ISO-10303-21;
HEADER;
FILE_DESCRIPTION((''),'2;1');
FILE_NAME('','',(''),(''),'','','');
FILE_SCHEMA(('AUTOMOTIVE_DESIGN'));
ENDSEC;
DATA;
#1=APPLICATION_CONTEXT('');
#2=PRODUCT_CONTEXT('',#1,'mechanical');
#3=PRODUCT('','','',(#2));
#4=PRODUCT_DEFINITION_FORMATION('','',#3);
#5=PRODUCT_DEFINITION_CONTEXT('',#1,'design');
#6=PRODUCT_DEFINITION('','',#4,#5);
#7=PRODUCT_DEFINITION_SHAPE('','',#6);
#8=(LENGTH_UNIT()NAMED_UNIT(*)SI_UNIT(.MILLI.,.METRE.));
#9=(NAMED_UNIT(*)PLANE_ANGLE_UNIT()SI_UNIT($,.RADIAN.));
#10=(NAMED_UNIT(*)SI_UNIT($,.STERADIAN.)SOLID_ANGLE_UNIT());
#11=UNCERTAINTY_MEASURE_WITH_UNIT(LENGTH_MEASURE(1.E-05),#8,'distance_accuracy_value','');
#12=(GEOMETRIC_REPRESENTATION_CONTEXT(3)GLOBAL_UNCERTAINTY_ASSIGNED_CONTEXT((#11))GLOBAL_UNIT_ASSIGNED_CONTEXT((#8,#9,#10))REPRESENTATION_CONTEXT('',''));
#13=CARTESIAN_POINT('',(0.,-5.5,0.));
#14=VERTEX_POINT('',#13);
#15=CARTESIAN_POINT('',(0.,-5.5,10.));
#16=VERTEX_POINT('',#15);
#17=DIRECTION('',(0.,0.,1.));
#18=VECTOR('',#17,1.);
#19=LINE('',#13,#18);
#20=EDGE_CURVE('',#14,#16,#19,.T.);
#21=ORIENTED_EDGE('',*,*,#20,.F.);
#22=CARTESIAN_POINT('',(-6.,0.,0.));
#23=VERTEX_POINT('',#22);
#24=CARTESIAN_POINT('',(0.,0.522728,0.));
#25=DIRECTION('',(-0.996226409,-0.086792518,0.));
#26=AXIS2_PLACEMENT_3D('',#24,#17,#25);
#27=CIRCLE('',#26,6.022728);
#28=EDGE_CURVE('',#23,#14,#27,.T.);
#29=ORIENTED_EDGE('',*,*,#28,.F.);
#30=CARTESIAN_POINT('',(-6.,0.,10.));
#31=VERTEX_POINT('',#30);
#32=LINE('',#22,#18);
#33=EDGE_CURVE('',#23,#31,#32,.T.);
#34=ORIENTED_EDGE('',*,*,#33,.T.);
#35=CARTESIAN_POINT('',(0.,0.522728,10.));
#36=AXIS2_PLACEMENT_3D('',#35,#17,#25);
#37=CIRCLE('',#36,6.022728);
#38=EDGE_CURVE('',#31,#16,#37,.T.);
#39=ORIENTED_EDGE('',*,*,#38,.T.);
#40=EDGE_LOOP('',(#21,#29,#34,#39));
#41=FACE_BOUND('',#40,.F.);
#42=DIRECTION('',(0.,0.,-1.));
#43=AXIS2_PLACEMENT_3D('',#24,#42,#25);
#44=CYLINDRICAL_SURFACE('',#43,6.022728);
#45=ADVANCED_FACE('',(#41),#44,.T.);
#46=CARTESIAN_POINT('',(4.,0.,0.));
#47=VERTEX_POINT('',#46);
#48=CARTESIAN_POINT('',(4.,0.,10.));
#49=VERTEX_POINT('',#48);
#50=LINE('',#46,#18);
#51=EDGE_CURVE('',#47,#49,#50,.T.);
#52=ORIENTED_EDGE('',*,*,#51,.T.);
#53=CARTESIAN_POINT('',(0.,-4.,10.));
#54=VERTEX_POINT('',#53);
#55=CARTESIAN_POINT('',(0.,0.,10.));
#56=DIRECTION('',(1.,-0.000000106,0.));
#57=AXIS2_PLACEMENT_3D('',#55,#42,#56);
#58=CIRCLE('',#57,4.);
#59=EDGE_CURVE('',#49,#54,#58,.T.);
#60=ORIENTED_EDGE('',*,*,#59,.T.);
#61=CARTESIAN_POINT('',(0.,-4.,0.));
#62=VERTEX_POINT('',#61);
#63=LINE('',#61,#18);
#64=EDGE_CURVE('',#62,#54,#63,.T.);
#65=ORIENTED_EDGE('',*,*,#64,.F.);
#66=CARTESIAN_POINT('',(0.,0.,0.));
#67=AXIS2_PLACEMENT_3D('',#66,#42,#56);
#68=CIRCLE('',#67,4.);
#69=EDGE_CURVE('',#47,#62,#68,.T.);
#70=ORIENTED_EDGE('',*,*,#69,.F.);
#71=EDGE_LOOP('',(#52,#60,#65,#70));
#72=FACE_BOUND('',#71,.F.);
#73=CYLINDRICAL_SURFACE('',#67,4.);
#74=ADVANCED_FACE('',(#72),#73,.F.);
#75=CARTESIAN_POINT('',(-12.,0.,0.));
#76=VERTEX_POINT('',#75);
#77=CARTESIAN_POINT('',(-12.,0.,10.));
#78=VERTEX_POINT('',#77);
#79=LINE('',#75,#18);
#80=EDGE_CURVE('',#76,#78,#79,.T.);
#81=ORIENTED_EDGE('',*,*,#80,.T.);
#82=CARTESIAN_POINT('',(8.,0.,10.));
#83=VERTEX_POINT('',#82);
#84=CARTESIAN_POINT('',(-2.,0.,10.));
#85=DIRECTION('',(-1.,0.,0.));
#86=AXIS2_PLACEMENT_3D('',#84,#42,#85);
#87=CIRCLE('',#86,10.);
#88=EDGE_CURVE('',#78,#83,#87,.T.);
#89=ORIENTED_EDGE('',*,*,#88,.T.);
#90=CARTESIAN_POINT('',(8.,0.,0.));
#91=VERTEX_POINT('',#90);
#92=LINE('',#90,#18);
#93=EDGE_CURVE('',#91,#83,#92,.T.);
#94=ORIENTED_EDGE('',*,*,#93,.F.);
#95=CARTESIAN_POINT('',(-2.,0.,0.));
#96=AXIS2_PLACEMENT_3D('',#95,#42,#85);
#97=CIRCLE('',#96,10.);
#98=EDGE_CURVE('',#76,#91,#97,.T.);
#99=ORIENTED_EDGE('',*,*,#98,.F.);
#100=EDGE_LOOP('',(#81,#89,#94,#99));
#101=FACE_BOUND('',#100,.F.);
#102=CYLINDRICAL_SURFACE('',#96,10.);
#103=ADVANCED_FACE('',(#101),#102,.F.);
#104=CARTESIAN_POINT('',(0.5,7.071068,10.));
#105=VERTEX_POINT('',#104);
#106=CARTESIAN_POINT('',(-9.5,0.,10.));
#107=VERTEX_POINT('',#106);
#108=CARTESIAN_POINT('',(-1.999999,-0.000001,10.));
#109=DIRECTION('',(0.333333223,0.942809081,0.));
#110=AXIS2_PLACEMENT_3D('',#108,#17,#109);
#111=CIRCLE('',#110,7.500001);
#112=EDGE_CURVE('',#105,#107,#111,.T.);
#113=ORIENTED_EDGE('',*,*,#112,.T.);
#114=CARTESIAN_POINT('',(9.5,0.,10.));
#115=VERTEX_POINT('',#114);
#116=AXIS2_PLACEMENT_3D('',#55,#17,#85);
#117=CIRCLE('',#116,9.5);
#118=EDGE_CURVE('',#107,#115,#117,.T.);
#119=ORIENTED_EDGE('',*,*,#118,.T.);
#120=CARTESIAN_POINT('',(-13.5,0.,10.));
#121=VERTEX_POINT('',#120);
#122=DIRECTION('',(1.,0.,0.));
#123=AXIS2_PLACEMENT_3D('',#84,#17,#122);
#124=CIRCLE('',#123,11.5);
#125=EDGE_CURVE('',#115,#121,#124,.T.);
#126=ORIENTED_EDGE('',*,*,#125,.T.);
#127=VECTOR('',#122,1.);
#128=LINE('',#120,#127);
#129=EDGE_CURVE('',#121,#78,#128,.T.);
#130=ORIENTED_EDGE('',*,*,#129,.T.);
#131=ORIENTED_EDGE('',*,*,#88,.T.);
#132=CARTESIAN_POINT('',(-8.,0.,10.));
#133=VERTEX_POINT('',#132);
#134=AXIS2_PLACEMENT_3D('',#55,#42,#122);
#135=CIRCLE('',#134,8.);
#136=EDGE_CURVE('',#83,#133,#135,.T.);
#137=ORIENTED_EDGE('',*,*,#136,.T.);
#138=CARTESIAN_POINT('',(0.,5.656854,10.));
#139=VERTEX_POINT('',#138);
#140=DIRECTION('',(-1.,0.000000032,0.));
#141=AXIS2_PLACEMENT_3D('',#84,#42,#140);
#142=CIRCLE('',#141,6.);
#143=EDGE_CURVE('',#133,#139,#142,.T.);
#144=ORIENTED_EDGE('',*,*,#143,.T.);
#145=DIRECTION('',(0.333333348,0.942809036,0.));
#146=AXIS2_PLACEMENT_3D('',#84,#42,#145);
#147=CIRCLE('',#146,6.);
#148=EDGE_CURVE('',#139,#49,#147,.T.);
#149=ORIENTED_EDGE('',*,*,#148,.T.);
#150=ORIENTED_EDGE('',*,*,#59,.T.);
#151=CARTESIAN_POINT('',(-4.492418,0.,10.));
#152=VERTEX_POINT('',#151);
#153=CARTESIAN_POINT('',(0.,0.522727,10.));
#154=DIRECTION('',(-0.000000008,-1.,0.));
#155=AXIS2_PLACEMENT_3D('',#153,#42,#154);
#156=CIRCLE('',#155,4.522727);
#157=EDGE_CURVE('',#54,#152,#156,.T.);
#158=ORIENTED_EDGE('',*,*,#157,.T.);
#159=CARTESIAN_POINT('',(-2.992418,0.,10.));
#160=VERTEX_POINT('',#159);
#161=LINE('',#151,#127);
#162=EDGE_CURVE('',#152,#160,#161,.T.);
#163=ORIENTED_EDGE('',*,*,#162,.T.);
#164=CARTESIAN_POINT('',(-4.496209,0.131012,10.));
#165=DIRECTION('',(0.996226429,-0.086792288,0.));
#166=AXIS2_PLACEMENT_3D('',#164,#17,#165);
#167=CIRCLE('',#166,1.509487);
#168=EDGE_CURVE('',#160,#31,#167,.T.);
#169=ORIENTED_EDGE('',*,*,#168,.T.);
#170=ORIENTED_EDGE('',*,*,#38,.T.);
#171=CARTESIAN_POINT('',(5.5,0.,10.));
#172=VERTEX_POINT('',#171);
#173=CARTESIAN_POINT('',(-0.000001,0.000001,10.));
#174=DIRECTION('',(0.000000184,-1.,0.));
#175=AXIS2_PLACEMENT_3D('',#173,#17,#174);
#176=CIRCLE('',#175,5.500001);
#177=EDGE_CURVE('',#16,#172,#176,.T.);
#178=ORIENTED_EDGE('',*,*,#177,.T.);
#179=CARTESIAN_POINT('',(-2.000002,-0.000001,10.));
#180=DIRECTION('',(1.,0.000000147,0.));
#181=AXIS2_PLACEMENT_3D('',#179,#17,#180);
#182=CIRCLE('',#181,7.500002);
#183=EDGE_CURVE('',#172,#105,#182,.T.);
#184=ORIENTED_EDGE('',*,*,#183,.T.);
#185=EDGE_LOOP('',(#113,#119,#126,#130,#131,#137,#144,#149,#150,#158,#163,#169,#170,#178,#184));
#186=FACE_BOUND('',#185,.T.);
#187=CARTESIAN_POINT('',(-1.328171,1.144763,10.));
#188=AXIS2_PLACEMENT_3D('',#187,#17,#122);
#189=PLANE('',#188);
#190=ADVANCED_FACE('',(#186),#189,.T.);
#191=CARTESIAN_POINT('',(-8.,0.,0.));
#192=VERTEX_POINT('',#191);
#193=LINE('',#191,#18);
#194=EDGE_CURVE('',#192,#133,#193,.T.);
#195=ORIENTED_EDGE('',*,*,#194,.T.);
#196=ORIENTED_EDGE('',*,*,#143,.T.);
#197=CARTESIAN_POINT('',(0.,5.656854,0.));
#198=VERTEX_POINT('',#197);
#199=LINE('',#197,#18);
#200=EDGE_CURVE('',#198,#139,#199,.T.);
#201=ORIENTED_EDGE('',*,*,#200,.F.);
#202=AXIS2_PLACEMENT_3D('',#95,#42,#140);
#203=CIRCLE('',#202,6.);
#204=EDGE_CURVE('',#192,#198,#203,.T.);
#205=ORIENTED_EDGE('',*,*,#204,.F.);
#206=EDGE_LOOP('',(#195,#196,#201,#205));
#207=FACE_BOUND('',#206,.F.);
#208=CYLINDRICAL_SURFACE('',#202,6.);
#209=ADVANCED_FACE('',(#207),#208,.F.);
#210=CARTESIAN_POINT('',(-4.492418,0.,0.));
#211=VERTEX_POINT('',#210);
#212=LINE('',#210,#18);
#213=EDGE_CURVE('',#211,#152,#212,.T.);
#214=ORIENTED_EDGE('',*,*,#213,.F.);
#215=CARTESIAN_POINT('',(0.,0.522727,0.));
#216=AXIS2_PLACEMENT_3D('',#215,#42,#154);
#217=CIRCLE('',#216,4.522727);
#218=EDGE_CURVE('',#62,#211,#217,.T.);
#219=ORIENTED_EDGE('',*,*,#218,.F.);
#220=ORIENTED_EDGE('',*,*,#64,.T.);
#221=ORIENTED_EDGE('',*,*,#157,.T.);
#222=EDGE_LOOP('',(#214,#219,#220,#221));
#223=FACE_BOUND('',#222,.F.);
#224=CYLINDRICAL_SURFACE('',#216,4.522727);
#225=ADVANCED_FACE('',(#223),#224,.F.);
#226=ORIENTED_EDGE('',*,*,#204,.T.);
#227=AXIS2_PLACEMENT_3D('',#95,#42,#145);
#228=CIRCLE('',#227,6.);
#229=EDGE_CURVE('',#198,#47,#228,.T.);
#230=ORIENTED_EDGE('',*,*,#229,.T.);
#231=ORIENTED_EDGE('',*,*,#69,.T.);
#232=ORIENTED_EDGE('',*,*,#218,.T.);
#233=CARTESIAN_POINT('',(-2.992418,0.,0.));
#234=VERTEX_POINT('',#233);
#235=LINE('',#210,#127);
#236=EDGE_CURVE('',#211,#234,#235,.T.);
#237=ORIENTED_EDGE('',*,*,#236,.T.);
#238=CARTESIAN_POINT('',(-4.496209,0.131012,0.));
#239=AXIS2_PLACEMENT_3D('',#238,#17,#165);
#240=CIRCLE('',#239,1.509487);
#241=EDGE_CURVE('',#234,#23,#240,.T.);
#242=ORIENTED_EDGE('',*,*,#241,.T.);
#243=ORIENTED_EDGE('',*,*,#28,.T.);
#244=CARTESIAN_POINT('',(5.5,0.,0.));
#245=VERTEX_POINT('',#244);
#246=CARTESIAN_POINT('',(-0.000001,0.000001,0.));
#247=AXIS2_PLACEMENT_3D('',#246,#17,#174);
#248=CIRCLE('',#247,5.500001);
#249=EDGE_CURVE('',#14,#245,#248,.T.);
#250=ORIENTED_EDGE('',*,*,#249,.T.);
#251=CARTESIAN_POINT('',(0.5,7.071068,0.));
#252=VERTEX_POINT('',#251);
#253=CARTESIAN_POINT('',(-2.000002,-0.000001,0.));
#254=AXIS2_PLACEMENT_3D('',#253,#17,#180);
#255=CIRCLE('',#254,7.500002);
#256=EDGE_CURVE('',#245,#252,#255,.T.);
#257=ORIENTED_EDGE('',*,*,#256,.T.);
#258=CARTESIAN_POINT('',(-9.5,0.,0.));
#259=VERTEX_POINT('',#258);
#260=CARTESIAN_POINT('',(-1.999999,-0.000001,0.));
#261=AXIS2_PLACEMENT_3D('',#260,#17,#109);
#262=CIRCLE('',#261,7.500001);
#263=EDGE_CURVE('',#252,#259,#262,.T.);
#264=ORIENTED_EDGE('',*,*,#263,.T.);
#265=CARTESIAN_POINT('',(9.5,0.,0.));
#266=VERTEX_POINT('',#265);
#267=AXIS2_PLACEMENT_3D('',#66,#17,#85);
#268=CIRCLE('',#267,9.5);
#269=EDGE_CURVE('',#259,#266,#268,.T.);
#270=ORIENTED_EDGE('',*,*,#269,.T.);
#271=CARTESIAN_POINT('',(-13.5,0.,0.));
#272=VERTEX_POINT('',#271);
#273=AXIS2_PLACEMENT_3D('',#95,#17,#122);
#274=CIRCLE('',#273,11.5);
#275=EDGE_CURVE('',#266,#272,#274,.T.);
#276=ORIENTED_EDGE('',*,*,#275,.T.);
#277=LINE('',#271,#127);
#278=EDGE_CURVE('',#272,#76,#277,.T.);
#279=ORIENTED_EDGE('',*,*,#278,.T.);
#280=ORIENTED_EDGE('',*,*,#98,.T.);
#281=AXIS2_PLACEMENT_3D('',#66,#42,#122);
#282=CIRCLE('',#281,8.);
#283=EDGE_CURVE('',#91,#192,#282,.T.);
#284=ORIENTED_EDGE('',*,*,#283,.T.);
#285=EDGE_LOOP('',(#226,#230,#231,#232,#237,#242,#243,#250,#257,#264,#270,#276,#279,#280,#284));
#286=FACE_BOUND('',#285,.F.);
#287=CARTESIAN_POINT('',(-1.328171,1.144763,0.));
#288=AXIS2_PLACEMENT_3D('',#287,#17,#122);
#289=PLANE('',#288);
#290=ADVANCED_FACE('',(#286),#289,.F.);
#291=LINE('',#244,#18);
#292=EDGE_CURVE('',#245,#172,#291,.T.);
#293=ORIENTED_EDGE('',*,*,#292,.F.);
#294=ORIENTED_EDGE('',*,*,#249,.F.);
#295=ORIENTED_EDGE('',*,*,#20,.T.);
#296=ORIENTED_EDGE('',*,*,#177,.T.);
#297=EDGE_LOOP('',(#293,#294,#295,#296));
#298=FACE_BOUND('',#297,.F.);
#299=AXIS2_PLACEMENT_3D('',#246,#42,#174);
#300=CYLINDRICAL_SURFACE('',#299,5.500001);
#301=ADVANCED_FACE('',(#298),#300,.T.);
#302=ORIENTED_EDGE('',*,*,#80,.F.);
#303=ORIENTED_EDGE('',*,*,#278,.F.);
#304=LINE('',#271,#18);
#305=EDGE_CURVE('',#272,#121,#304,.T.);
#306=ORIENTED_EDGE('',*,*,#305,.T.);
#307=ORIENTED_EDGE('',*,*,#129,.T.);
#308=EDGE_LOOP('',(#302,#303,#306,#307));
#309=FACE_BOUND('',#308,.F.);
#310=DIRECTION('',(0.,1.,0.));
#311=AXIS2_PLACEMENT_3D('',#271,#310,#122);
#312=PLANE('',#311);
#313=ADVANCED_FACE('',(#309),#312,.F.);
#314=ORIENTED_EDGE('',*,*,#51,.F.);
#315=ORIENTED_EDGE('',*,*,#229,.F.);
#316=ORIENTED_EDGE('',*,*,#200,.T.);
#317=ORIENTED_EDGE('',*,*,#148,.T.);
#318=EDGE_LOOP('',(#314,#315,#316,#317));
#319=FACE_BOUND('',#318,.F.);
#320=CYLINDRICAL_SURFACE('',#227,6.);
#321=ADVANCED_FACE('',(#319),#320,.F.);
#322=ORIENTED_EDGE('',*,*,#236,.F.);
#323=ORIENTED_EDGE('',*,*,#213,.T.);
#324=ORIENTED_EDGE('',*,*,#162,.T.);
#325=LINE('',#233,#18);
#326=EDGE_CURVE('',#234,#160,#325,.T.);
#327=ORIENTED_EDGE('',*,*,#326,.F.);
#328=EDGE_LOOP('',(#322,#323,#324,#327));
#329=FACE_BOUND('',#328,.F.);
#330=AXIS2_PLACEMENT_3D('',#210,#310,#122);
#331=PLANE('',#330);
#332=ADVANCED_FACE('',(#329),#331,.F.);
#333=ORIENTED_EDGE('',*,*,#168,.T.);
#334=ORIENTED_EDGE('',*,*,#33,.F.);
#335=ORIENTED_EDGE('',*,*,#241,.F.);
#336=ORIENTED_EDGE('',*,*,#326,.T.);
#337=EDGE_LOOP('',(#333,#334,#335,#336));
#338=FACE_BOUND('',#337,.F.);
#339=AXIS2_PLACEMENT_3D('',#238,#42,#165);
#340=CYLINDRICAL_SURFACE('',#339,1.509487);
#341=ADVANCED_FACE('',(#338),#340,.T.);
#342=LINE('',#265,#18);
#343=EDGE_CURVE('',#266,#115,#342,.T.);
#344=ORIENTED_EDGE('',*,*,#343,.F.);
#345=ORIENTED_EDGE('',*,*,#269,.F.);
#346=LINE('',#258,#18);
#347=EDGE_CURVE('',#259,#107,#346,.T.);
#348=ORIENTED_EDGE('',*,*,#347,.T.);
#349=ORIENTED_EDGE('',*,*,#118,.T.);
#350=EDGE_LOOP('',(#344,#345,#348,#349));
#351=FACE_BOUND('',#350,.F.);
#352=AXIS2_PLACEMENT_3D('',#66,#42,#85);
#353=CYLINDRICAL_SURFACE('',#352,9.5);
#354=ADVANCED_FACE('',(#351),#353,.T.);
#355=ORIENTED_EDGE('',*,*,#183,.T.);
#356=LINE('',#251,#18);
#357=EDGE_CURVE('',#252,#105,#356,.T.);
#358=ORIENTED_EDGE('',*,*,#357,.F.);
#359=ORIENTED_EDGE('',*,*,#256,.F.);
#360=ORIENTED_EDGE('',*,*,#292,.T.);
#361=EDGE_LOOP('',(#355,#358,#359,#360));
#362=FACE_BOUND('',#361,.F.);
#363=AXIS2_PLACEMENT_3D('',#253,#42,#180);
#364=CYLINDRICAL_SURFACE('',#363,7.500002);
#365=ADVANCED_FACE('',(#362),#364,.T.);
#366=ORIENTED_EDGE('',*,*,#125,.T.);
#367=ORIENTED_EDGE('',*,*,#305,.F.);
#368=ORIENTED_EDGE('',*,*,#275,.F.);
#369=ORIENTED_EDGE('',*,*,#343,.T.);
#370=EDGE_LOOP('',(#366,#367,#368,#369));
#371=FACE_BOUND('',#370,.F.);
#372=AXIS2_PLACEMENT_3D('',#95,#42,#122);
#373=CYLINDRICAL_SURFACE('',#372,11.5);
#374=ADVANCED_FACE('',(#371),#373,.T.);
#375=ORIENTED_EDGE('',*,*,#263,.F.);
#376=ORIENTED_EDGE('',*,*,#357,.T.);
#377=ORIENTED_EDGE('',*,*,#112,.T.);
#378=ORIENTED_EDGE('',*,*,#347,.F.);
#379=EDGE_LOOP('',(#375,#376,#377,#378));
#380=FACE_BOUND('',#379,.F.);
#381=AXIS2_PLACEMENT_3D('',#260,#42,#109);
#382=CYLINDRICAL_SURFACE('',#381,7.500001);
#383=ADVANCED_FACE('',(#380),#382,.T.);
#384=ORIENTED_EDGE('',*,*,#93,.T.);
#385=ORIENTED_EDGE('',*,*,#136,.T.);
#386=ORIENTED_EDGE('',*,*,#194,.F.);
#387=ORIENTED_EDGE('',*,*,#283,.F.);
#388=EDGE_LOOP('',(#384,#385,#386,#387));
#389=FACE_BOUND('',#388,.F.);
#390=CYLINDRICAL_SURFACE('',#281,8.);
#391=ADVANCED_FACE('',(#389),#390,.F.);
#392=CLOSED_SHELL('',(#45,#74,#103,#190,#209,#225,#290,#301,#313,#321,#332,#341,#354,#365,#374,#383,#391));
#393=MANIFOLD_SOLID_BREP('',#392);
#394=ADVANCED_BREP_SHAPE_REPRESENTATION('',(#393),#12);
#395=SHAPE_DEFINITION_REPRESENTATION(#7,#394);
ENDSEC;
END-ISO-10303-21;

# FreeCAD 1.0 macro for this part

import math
import FreeCAD as App
import Part
import Sketcher
from FreeCAD import Vector

doc = App.newDocument("Part")
params = doc.addObject("Spreadsheet::Sheet", "Params")
for row, (alias, value) in enumerate([
    ("sketch1_radius", "6 mm"),
    ("sketch1_radius2", "4 mm"),
    ("sketch1_radius3", "5.500001 mm"),
    ("pad1_length", "10 mm"),
], start=1):
    params.set(f"A{row}", alias)
    params.set(f"B{row}", "=" + value)
    params.setAlias(f"B{row}", alias)

body = doc.addObject("PartDesign::Body", "Body")

# Sketch on XY plane
sketch1 = body.newObject("Sketcher::SketchObject", "Sketch")
sketch1.AttachmentSupport = (doc.getObject("XY_Plane"), [""])
sketch1.MapMode = "FlatFace"
sketch1.addGeometry([
    Part.ArcOfCircle(Part.Circle(Vector(-2, 0, 0), Vector(0, 0, 1), 6), math.radians(0), math.radians(71)),  # 0
    Part.ArcOfCircle(Part.Circle(Vector(0, 0, 0), Vector(0, 0, 1), 4), math.radians(-90), math.radians(0)),  # 1
    Part.ArcOfCircle(Part.Circle(Vector(0, 0.5, 0), Vector(0, 0, 1), 4.5), math.radians(-173), math.radians(-90)),  # 2
    Part.LineSegment(Vector(-4.5, 0, 0), Vector(-3, 0, 0)),  # 3
    Part.ArcOfCircle(Part.Circle(Vector(-4.5, 0.1, 0), Vector(0, 0, 1), 1.5), math.radians(-5), math.radians(185)),  # 4
    Part.ArcOfCircle(Part.Circle(Vector(0, 0.5, 0), Vector(0, 0, 1), 6), math.radians(-175), math.radians(-90)),  # 5
    Part.ArcOfCircle(Part.Circle(Vector(0, 0, 0), Vector(0, 0, 1), 5.5), math.radians(-90), math.radians(0)),  # 6
    Part.ArcOfCircle(Part.Circle(Vector(-2, 0, 0), Vector(0, 0, 1), 7.5), math.radians(0), math.radians(71)),  # 7
    Part.ArcOfCircle(Part.Circle(Vector(-2, 0, 0), Vector(0, 0, 1), 7.5), math.radians(71), math.radians(180)),  # 8
    Part.ArcOfCircle(Part.Circle(Vector(0, 0, 0), Vector(0, 0, 1), 9.5), math.radians(180), math.radians(360)),  # 9
    Part.ArcOfCircle(Part.Circle(Vector(-2, 0, 0), Vector(0, 0, 1), 11.5), math.radians(0), math.radians(180)),  # 10
    Part.LineSegment(Vector(-13.5, 0, 0), Vector(-12, 0, 0)),  # 11
    Part.ArcOfCircle(Part.Circle(Vector(-2, 0, 0), Vector(0, 0, 1), 10), math.radians(0), math.radians(180)),  # 12
    Part.ArcOfCircle(Part.Circle(Vector(0, 0, 0), Vector(0, 0, 1), 8), math.radians(180), math.radians(360)),  # 13
    Part.ArcOfCircle(Part.Circle(Vector(-2, 0, 0), Vector(0, 0, 1), 6), math.radians(71), math.radians(180)),  # 14
], False)
sketch1.addConstraint([
    Sketcher.Constraint("Tangent", 0, 1, 1, 2),
    Sketcher.Constraint("Tangent", 1, 1, 2, 2),
    Sketcher.Constraint("Coincident", 2, 1, 3, 1),
    Sketcher.Constraint("Coincident", 3, 2, 4, 1),
    Sketcher.Constraint("Tangent", 4, 2, 5, 1),
    Sketcher.Constraint("Tangent", 5, 2, 6, 1),
    Sketcher.Constraint("Tangent", 6, 2, 7, 1),
    Sketcher.Constraint("Tangent", 7, 2, 8, 1),
    Sketcher.Constraint("Tangent", 8, 2, 9, 1),
    Sketcher.Constraint("Tangent", 9, 2, 10, 1),
    Sketcher.Constraint("Coincident", 10, 2, 11, 1),
    Sketcher.Constraint("Coincident", 11, 2, 12, 2),
    Sketcher.Constraint("Tangent", 12, 1, 13, 2),
    Sketcher.Constraint("Tangent", 13, 1, 14, 2),
    Sketcher.Constraint("Tangent", 14, 1, 0, 2),
    Sketcher.Constraint("Horizontal", 3),
    Sketcher.Constraint("Horizontal", 11),
    Sketcher.Constraint("Coincident", 1, 3, -1, 1),
    Sketcher.Constraint("Coincident", 6, 3, -1, 1),
    Sketcher.Constraint("Coincident", 9, 3, -1, 1),
    Sketcher.Constraint("Coincident", 13, 3, -1, 1),
    Sketcher.Constraint("Coincident", 5, 3, 2, 3),
    Sketcher.Constraint("Coincident", 7, 3, 0, 3),
    Sketcher.Constraint("Coincident", 10, 3, 0, 3),
    Sketcher.Constraint("Coincident", 12, 3, 0, 3),
    Sketcher.Constraint("Equal", 7, 8),
    Sketcher.Constraint("Equal", 0, 14),
    Sketcher.Constraint("PointOnObject", 0, 3, -1),
    Sketcher.Constraint("PointOnObject", 2, 3, -2),
    Sketcher.Constraint("PointOnObject", 2, 1, -1),
    Sketcher.Constraint("PointOnObject", 4, 2, -1),
    Sketcher.Constraint("PointOnObject", 10, 2, -1),
    Sketcher.Constraint("PointOnObject", 14, 1, -2),
    Sketcher.Constraint("Equal", 3, 11),
    Sketcher.Constraint("Radius", 0, 6.0),
    Sketcher.Constraint("Radius", 1, 4.0),
    Sketcher.Constraint("Radius", 6, 5.500001),
    Sketcher.Constraint("DistanceX", 4, 2, -1, 1, 6.0),
    Sketcher.Constraint("DistanceX", -1, 1, 7, 2, 0.5),
])
sketch1.setExpression("Constraints[34]", "Params.sketch1_radius")
sketch1.setExpression("Constraints[35]", "Params.sketch1_radius2")
sketch1.setExpression("Constraints[36]", "Params.sketch1_radius3")
pad1 = body.newObject("PartDesign::Pad", "Pad")
pad1.Profile = sketch1
pad1.setExpression("Length", "Params.pad1_length")

doc.recompute()
